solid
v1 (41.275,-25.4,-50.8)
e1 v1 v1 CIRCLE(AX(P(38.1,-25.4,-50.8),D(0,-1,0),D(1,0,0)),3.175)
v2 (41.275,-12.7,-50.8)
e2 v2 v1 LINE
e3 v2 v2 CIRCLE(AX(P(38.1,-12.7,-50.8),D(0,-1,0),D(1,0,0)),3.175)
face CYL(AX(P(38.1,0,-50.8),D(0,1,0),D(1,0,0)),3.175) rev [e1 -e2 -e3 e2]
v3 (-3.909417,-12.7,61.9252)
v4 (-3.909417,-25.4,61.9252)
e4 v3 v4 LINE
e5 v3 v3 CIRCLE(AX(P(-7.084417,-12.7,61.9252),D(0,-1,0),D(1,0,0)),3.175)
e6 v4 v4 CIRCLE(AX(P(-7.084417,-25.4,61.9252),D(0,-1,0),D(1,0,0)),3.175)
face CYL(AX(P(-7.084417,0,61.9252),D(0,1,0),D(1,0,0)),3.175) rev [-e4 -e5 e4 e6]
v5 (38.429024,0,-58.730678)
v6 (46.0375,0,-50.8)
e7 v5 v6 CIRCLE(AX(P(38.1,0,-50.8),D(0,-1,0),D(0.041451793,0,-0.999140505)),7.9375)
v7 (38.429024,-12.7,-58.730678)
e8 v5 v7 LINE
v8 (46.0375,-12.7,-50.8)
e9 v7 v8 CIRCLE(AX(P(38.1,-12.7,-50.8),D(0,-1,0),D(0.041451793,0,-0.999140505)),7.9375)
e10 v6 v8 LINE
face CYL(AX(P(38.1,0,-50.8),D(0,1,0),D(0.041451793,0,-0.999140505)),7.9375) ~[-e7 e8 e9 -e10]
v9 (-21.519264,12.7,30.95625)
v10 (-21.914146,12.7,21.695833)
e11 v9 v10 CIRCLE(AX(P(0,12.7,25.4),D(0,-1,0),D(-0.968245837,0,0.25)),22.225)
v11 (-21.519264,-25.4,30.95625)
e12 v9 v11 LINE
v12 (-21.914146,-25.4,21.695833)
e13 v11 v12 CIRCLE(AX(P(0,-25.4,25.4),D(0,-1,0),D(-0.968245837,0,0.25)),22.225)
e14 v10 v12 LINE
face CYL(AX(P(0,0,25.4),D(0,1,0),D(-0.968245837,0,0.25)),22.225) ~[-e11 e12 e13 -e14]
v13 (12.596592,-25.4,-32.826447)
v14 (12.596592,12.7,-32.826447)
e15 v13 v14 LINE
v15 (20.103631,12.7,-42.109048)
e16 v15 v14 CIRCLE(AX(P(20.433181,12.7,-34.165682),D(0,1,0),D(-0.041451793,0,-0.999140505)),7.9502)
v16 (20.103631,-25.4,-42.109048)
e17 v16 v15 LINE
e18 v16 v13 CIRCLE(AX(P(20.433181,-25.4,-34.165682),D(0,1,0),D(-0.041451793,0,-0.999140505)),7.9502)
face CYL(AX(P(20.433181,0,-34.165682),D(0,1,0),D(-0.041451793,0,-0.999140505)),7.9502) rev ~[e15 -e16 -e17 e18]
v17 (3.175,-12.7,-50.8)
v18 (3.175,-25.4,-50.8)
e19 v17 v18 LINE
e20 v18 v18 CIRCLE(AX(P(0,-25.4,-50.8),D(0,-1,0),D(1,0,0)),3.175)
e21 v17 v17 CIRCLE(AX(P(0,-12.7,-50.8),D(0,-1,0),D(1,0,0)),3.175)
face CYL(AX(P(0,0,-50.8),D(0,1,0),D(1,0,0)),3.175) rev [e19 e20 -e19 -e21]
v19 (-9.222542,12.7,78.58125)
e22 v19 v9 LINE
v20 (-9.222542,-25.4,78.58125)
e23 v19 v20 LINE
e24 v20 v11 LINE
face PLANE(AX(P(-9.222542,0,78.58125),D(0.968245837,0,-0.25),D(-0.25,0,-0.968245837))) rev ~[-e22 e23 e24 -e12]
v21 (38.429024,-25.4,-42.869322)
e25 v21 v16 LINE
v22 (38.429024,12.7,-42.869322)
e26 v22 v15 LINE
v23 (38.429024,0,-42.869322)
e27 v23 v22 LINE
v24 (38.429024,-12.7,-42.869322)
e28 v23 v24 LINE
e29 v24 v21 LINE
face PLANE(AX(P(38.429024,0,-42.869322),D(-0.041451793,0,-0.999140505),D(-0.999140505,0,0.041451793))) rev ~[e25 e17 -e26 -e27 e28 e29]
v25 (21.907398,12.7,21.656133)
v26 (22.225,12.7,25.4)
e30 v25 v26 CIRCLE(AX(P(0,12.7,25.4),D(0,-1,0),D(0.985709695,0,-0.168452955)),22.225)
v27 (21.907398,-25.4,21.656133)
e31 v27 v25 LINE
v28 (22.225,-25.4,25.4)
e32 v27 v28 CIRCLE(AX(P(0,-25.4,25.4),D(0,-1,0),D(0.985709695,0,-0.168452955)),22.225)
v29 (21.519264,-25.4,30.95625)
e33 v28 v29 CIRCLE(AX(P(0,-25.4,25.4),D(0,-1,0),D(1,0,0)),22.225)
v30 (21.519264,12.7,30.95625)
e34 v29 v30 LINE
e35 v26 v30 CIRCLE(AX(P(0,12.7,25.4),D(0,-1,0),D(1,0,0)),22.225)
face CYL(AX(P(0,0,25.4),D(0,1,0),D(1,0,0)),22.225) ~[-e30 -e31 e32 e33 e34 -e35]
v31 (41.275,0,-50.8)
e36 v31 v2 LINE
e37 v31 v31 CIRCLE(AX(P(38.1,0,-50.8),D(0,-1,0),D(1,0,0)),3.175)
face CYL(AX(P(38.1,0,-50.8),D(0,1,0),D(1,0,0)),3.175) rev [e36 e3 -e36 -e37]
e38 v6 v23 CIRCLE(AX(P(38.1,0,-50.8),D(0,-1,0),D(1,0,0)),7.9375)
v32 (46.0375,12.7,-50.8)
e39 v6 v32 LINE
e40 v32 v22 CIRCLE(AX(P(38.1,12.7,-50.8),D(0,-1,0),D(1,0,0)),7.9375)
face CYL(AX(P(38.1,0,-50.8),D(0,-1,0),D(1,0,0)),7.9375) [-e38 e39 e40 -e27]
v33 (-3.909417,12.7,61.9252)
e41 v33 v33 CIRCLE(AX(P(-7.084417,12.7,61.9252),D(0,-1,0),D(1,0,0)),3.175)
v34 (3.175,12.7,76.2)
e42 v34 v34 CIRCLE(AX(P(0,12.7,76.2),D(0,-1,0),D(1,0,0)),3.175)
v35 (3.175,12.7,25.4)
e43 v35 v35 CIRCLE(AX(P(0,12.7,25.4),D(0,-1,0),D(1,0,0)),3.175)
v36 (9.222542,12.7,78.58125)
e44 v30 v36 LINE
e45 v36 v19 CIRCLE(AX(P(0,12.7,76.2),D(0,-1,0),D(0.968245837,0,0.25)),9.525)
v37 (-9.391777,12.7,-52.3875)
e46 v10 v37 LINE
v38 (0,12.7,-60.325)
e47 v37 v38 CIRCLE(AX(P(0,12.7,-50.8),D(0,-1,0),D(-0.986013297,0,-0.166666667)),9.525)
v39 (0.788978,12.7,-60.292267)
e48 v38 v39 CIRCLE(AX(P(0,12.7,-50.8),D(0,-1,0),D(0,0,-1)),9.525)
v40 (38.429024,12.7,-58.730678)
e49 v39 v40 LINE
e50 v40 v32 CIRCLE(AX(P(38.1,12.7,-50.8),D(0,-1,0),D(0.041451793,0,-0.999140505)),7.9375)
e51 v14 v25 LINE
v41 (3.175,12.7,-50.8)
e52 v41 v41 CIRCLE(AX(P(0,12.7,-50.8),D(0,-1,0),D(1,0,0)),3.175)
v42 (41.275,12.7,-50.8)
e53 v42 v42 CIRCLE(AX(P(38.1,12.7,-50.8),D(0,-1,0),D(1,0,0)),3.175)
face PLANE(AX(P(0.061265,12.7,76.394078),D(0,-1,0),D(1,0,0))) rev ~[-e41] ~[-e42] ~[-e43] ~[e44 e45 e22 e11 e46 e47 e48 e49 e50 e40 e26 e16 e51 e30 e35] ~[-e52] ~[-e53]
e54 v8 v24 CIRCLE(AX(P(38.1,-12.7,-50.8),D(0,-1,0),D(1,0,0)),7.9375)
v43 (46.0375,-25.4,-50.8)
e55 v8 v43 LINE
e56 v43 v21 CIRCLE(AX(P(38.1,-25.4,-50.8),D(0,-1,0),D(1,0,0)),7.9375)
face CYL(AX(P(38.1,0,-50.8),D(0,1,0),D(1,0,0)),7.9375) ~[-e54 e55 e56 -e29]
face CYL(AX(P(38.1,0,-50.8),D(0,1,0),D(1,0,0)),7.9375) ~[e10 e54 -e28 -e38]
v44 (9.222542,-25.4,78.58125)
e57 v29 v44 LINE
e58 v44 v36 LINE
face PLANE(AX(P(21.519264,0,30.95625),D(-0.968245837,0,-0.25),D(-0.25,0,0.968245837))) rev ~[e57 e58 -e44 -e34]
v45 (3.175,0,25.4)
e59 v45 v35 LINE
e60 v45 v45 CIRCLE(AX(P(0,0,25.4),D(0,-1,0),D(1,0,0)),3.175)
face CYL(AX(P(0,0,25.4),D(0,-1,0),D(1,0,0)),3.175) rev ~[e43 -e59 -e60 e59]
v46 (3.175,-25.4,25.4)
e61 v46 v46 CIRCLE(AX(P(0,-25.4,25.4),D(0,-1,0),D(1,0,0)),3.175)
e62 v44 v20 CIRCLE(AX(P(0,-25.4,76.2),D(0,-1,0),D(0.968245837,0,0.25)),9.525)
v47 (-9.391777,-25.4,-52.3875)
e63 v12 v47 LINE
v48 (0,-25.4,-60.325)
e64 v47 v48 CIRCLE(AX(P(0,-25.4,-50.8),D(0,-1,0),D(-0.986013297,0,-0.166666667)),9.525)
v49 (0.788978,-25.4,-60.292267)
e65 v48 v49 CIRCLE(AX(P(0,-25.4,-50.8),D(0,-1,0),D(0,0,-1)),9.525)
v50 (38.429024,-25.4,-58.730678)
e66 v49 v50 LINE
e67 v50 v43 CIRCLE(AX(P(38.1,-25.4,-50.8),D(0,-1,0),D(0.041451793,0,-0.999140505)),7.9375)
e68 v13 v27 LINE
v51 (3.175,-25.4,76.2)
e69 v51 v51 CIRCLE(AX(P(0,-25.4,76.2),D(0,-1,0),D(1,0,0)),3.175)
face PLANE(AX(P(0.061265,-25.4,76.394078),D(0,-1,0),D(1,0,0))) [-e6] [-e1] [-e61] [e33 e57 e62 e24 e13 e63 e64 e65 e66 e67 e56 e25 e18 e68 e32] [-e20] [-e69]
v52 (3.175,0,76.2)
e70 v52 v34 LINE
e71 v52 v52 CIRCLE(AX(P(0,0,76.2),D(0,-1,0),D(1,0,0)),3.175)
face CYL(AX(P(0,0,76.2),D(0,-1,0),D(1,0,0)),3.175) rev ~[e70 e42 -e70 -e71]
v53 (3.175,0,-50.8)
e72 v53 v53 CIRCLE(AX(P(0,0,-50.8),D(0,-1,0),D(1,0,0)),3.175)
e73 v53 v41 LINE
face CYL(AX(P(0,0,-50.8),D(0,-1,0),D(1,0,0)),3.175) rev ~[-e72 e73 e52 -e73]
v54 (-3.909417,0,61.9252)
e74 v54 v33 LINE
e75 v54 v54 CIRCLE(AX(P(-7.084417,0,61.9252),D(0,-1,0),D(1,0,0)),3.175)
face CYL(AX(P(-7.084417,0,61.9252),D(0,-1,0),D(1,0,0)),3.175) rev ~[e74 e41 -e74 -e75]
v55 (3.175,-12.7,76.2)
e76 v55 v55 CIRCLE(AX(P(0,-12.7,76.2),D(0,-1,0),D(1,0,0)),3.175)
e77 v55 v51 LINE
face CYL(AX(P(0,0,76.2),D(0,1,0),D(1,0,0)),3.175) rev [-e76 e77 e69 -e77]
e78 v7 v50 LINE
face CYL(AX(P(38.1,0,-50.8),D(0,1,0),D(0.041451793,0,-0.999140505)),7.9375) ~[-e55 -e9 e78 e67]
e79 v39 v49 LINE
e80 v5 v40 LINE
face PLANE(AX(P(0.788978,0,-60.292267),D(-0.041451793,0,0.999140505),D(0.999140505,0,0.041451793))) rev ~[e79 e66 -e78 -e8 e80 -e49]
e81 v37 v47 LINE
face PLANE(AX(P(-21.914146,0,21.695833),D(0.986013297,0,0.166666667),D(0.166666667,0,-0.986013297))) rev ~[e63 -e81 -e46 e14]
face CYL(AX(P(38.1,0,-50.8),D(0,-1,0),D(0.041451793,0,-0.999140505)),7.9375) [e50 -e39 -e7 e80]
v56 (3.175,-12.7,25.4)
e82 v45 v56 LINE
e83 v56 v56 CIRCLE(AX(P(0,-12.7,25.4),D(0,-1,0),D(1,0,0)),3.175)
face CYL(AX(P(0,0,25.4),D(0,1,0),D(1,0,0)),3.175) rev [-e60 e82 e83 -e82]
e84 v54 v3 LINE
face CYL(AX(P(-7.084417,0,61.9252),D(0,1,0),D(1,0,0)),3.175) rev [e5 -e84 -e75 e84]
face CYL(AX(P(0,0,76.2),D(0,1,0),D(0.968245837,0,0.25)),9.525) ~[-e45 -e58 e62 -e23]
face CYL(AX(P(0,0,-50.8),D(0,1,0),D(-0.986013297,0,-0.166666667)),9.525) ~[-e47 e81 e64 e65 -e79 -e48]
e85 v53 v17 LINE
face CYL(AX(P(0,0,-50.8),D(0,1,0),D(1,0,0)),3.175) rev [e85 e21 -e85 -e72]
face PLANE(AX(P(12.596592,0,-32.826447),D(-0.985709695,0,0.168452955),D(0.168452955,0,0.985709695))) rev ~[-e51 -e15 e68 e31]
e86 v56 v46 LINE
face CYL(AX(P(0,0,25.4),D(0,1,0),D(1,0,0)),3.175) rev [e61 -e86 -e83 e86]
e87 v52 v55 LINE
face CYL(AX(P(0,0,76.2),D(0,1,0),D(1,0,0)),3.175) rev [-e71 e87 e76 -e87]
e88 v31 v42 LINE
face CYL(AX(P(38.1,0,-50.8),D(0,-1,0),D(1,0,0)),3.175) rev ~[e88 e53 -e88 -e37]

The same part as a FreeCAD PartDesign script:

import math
import FreeCAD as App
import Part
import Sketcher

V = App.Vector
Q = App.Units.Quantity

doc = App.newDocument("Part")
body = doc.addObject("PartDesign::Body", "Body")

sketch1 = body.newObject("Sketcher::SketchObject", "Sketch")
sketch1.AttachmentSupport = (doc.getObject("XZ_Plane"), [""])
sketch1.MapMode = "FlatFace"
sketch1.addGeometry(Part.ArcOfCircle(Part.Circle(V(0, 76.2, 0), V(0, 0, 1), 9.525), math.radians(14.477512), math.radians(165.522488)), False)
sketch1.addGeometry(Part.LineSegment(V(-9.222542, 78.58125, 0), V(-21.519264, 30.95625, 0)), False)
sketch1.addGeometry(Part.ArcOfCircle(Part.Circle(V(0, 25.4, 0), V(0, 0, 1), 22.225), math.radians(165.522488), math.radians(189.594068)), False)
sketch1.addGeometry(Part.LineSegment(V(-21.914146, 21.695833, 0), V(-9.391777, -52.3875, 0)), False)
sketch1.addGeometry(Part.ArcOfCircle(Part.Circle(V(0, -50.8, 0), V(0, 0, 1), 9.525), math.radians(-170.405932), math.radians(-90)), False)
sketch1.addGeometry(Part.ArcOfCircle(Part.Circle(V(0, -50.8, 0), V(0, 0, 1), 9.525), math.radians(-90), math.radians(-85.248613)), False)
sketch1.addGeometry(Part.LineSegment(V(0.788978, -60.292267, 0), V(38.429024, -58.730678, 0)), False)
sketch1.addGeometry(Part.ArcOfCircle(Part.Circle(V(38.1, -50.8, 0), V(0, 0, 1), 7.9375), math.radians(-87.624307), math.radians(0)), False)
sketch1.addGeometry(Part.ArcOfCircle(Part.Circle(V(38.1, -50.8, 0), V(0, 0, 1), 7.9375), math.radians(0), math.radians(87.624307)), False)
sketch1.addGeometry(Part.LineSegment(V(38.429024, -42.869322, 0), V(20.103631, -42.109048, 0)), False)
sketch1.addGeometry(Part.ArcOfCircle(Part.Circle(V(20.433181, -34.165682, 0), V(0, 0, 1), 7.9502), math.radians(170.302117), math.radians(267.624307)), False)
sketch1.addGeometry(Part.LineSegment(V(12.596592, -32.826447, 0), V(21.907398, 21.656133, 0)), False)
sketch1.addGeometry(Part.ArcOfCircle(Part.Circle(V(0, 25.4, 0), V(0, 0, 1), 22.225), math.radians(-9.697883), math.radians(0)), False)
sketch1.addGeometry(Part.ArcOfCircle(Part.Circle(V(0, 25.4, 0), V(0, 0, 1), 22.225), math.radians(0), math.radians(14.477512)), False)
sketch1.addGeometry(Part.LineSegment(V(21.519264, 30.95625, 0), V(9.222542, 78.58125, 0)), False)
sketch1.addGeometry(Part.Circle(V(0, -50.8, 0), V(0, 0, 1), 3.175), False)
sketch1.addGeometry(Part.Circle(V(38.1, -50.8, 0), V(0, 0, 1), 3.175), False)
sketch1.addGeometry(Part.Circle(V(0, 25.4, 0), V(0, 0, 1), 3.175), False)
sketch1.addGeometry(Part.Circle(V(-7.084417, 61.9252, 0), V(0, 0, 1), 3.175), False)
sketch1.addGeometry(Part.Circle(V(0, 76.2, 0), V(0, 0, 1), 3.175), False)
sketch1.addConstraint(Sketcher.Constraint("Coincident", 0, 2, 1, 1))
sketch1.addConstraint(Sketcher.Constraint("Coincident", 1, 2, 2, 1))
sketch1.addConstraint(Sketcher.Constraint("Coincident", 2, 2, 3, 1))
sketch1.addConstraint(Sketcher.Constraint("Coincident", 3, 2, 4, 1))
sketch1.addConstraint(Sketcher.Constraint("Coincident", 4, 2, 5, 1))
sketch1.addConstraint(Sketcher.Constraint("Coincident", 5, 2, 6, 1))
sketch1.addConstraint(Sketcher.Constraint("Coincident", 6, 2, 7, 1))
sketch1.addConstraint(Sketcher.Constraint("Coincident", 7, 2, 8, 1))
sketch1.addConstraint(Sketcher.Constraint("Coincident", 8, 2, 9, 1))
sketch1.addConstraint(Sketcher.Constraint("Coincident", 9, 2, 10, 2))
sketch1.addConstraint(Sketcher.Constraint("Coincident", 10, 1, 11, 1))
sketch1.addConstraint(Sketcher.Constraint("Coincident", 11, 2, 12, 1))
sketch1.addConstraint(Sketcher.Constraint("Coincident", 12, 2, 13, 1))
sketch1.addConstraint(Sketcher.Constraint("Coincident", 13, 2, 14, 1))
sketch1.addConstraint(Sketcher.Constraint("Coincident", 14, 2, 0, 1))
sketch1.addConstraint(Sketcher.Constraint("Coincident", 5, 3, 4, 3))
sketch1.addConstraint(Sketcher.Constraint("Coincident", 8, 3, 7, 3))
sketch1.addConstraint(Sketcher.Constraint("Coincident", 12, 3, 2, 3))
sketch1.addConstraint(Sketcher.Constraint("Coincident", 13, 3, 2, 3))
sketch1.addConstraint(Sketcher.Constraint("Coincident", 15, 3, 4, 3))
sketch1.addConstraint(Sketcher.Constraint("Coincident", 16, 3, 7, 3))
sketch1.addConstraint(Sketcher.Constraint("Coincident", 17, 3, 2, 3))
sketch1.addConstraint(Sketcher.Constraint("Coincident", 19, 3, 0, 3))
sketch1.addConstraint(Sketcher.Constraint("PointOnObject", 0, 3, -2))
sketch1.addConstraint(Sketcher.Constraint("PointOnObject", 2, 3, -2))
sketch1.addConstraint(Sketcher.Constraint("PointOnObject", 4, 3, -2))
sketch1.addConstraint(Sketcher.Constraint("PointOnObject", 4, 2, -2))
sketch1.addConstraint(Sketcher.Constraint("Diameter", 15, Q("0.25 in")))
sketch1.addConstraint(Sketcher.Constraint("Diameter", 16, Q("0.25 in")))
sketch1.addConstraint(Sketcher.Constraint("Diameter", 17, Q("0.25 in")))
sketch1.addConstraint(Sketcher.Constraint("Diameter", 18, Q("0.25 in")))
sketch1.addConstraint(Sketcher.Constraint("Diameter", 19, Q("0.25 in")))
sketch1.addConstraint(Sketcher.Constraint("DistanceY", -1, 1, 0, 3, Q("3 in")))
sketch1.addConstraint(Sketcher.Constraint("DistanceY", -1, 1, 2, 3, Q("1 in")))
sketch1.addConstraint(Sketcher.Constraint("DistanceY", 4, 3, -1, 1, Q("2 in")))
sketch1.addConstraint(Sketcher.Constraint("DistanceY", 7, 3, -1, 1, Q("2 in")))
sketch1.addConstraint(Sketcher.Constraint("DistanceY", 7, 2, -1, 1, Q("2 in")))
sketch1.addConstraint(Sketcher.Constraint("DistanceY", -1, 1, 12, 2, Q("1 in")))
sketch1.addConstraint(Sketcher.Constraint("Radius", 0, Q("0.375 in")))
sketch1.addConstraint(Sketcher.Constraint("Radius", 2, Q("0.875 in")))
sketch1.addConstraint(Sketcher.Constraint("Radius", 4, Q("0.375 in")))
sketch1.addConstraint(Sketcher.Constraint("Radius", 7, Q("0.3125 in")))
sketch1.addConstraint(Sketcher.Constraint("Radius", 10, Q("0.313 in")))
sketch1.addConstraint(Sketcher.Constraint("Radius", 12, Q("0.875 in")))
sketch1.addConstraint(Sketcher.Constraint("DistanceX", -1, 1, 7, 3, Q("1.5 in")))
sketch1.addConstraint(Sketcher.Constraint("DistanceY", -1, 1, 18, 3, Q("2.438 in")))
sketch1.addConstraint(Sketcher.Constraint("DistanceY", -1, 1, 0, 2, Q("3.09375 in")))
sketch1.addConstraint(Sketcher.Constraint("DistanceY", -1, 1, 1, 2, Q("1.21875 in")))
sketch1.addConstraint(Sketcher.Constraint("DistanceY", 3, 2, -1, 1, Q("2.0625 in")))
sketch1.addConstraint(Sketcher.Constraint("DistanceY", -1, 1, 13, 2, Q("1.21875 in")))
sketch1.addConstraint(Sketcher.Constraint("DistanceY", -1, 1, 14, 2, Q("3.09375 in")))
sketch1.addConstraint(Sketcher.Constraint("DistanceY", 9, 2, 10, 1, Q("9.282602 mm")))
sketch1.addConstraint(Sketcher.Constraint("DistanceY", 11, 2, 2, 2, Q("0.0397 mm")))
sketch1.addConstraint(Sketcher.Constraint("Distance", 11, Q("55.27244 mm")))
sketch1.addConstraint(Sketcher.Constraint("DistanceX", -1, 1, 10, 3, Q("20.433181 mm")))
sketch1.addConstraint(Sketcher.Constraint("DistanceY", 10, 3, -1, 1, Q("34.165682 mm")))
sketch1.addConstraint(Sketcher.Constraint("DistanceX", -1, 1, 9, 2, Q("20.103631 mm")))
sketch1.addConstraint(Sketcher.Constraint("DistanceY", 5, 2, 6, 2, Q("1.56159 mm")))
sketch1.addConstraint(Sketcher.Constraint("DistanceX", 18, 3, 14, 2, Q("16.306959 mm")))
sketch1.addConstraint(Sketcher.Constraint("Distance", 6, Q("37.672425 mm")))
sketch1.addConstraint(Sketcher.Constraint("Distance", 9, Q("18.341156 mm")))
pad1 = body.newObject("PartDesign::Pad", "Pad")
pad1.Profile = sketch1
pad1.Length = Q("1 in")
pad1.Midplane = True

sketch2 = body.newObject("Sketcher::SketchObject", "Sketch001")
sketch2.AttachmentSupport = (doc.getObject("XZ_Plane"), [""])
sketch2.MapMode = "FlatFace"
sketch2.addGeometry(Part.ArcOfCircle(Part.Circle(V(0, 76.2, 0), V(0, 0, 1), 9.525), math.radians(14.477512), math.radians(165.522488)), False)
sketch2.addGeometry(Part.LineSegment(V(-9.222542, 78.58125, 0), V(-21.519264, 30.95625, 0)), False)
sketch2.addGeometry(Part.ArcOfCircle(Part.Circle(V(0, 25.4, 0), V(0, 0, 1), 22.225), math.radians(165.522488), math.radians(189.594068)), False)
sketch2.addGeometry(Part.LineSegment(V(-21.914146, 21.695833, 0), V(-9.391777, -52.3875, 0)), False)
sketch2.addGeometry(Part.ArcOfCircle(Part.Circle(V(0, -50.8, 0), V(0, 0, 1), 9.525), math.radians(-170.405932), math.radians(-90)), False)
sketch2.addGeometry(Part.ArcOfCircle(Part.Circle(V(0, -50.8, 0), V(0, 0, 1), 9.525), math.radians(-90), math.radians(-85.248613)), False)
sketch2.addGeometry(Part.LineSegment(V(0.788978, -60.292267, 0), V(38.429024, -58.730678, 0)), False)
sketch2.addGeometry(Part.ArcOfCircle(Part.Circle(V(38.1, -50.8, 0), V(0, 0, 1), 7.9375), math.radians(-87.624307), math.radians(0)), False)
sketch2.addGeometry(Part.ArcOfCircle(Part.Circle(V(38.1, -50.8, 0), V(0, 0, 1), 7.9375), math.radians(0), math.radians(87.624307)), False)
sketch2.addGeometry(Part.LineSegment(V(38.429024, -42.869322, 0), V(20.103631, -42.109048, 0)), False)
sketch2.addGeometry(Part.ArcOfCircle(Part.Circle(V(20.433181, -34.165682, 0), V(0, 0, 1), 7.9502), math.radians(170.302117), math.radians(267.624307)), False)
sketch2.addGeometry(Part.LineSegment(V(12.596592, -32.826447, 0), V(21.907398, 21.656133, 0)), False)
sketch2.addGeometry(Part.ArcOfCircle(Part.Circle(V(0, 25.4, 0), V(0, 0, 1), 22.225), math.radians(-9.697883), math.radians(0)), False)
sketch2.addGeometry(Part.ArcOfCircle(Part.Circle(V(0, 25.4, 0), V(0, 0, 1), 22.225), math.radians(0), math.radians(14.477512)), False)
sketch2.addGeometry(Part.LineSegment(V(21.519264, 30.95625, 0), V(9.222542, 78.58125, 0)), False)
sketch2.addGeometry(Part.Circle(V(0, -50.8, 0), V(0, 0, 1), 3.175), False)
sketch2.addGeometry(Part.Circle(V(38.1, -50.8, 0), V(0, 0, 1), 3.175), False)
sketch2.addGeometry(Part.Circle(V(0, 25.4, 0), V(0, 0, 1), 3.175), False)
sketch2.addGeometry(Part.Circle(V(-7.084417, 61.9252, 0), V(0, 0, 1), 3.175), False)
sketch2.addGeometry(Part.Circle(V(0, 76.2, 0), V(0, 0, 1), 3.175), False)
sketch2.addConstraint(Sketcher.Constraint("Coincident", 0, 2, 1, 1))
sketch2.addConstraint(Sketcher.Constraint("Coincident", 1, 2, 2, 1))
sketch2.addConstraint(Sketcher.Constraint("Coincident", 2, 2, 3, 1))
sketch2.addConstraint(Sketcher.Constraint("Coincident", 3, 2, 4, 1))
sketch2.addConstraint(Sketcher.Constraint("Coincident", 4, 2, 5, 1))
sketch2.addConstraint(Sketcher.Constraint("Coincident", 5, 2, 6, 1))
sketch2.addConstraint(Sketcher.Constraint("Coincident", 6, 2, 7, 1))
sketch2.addConstraint(Sketcher.Constraint("Coincident", 7, 2, 8, 1))
sketch2.addConstraint(Sketcher.Constraint("Coincident", 8, 2, 9, 1))
sketch2.addConstraint(Sketcher.Constraint("Coincident", 9, 2, 10, 2))
sketch2.addConstraint(Sketcher.Constraint("Coincident", 10, 1, 11, 1))
sketch2.addConstraint(Sketcher.Constraint("Coincident", 11, 2, 12, 1))
sketch2.addConstraint(Sketcher.Constraint("Coincident", 12, 2, 13, 1))
sketch2.addConstraint(Sketcher.Constraint("Coincident", 13, 2, 14, 1))
sketch2.addConstraint(Sketcher.Constraint("Coincident", 14, 2, 0, 1))
sketch2.addConstraint(Sketcher.Constraint("Coincident", 5, 3, 4, 3))
sketch2.addConstraint(Sketcher.Constraint("Coincident", 8, 3, 7, 3))
sketch2.addConstraint(Sketcher.Constraint("Coincident", 12, 3, 2, 3))
sketch2.addConstraint(Sketcher.Constraint("Coincident", 13, 3, 2, 3))
sketch2.addConstraint(Sketcher.Constraint("Coincident", 15, 3, 4, 3))
sketch2.addConstraint(Sketcher.Constraint("Coincident", 16, 3, 7, 3))
sketch2.addConstraint(Sketcher.Constraint("Coincident", 17, 3, 2, 3))
sketch2.addConstraint(Sketcher.Constraint("Coincident", 19, 3, 0, 3))
sketch2.addConstraint(Sketcher.Constraint("PointOnObject", 0, 3, -2))
sketch2.addConstraint(Sketcher.Constraint("PointOnObject", 2, 3, -2))
sketch2.addConstraint(Sketcher.Constraint("PointOnObject", 4, 3, -2))
sketch2.addConstraint(Sketcher.Constraint("PointOnObject", 4, 2, -2))
sketch2.addConstraint(Sketcher.Constraint("Diameter", 15, Q("0.25 in")))
sketch2.addConstraint(Sketcher.Constraint("Diameter", 16, Q("0.25 in")))
sketch2.addConstraint(Sketcher.Constraint("Diameter", 17, Q("0.25 in")))
sketch2.addConstraint(Sketcher.Constraint("Diameter", 18, Q("0.25 in")))
sketch2.addConstraint(Sketcher.Constraint("Diameter", 19, Q("0.25 in")))
sketch2.addConstraint(Sketcher.Constraint("DistanceY", -1, 1, 0, 3, Q("3 in")))
sketch2.addConstraint(Sketcher.Constraint("DistanceY", -1, 1, 2, 3, Q("1 in")))
sketch2.addConstraint(Sketcher.Constraint("DistanceY", 4, 3, -1, 1, Q("2 in")))
sketch2.addConstraint(Sketcher.Constraint("DistanceY", 7, 3, -1, 1, Q("2 in")))
sketch2.addConstraint(Sketcher.Constraint("DistanceY", 7, 2, -1, 1, Q("2 in")))
sketch2.addConstraint(Sketcher.Constraint("DistanceY", -1, 1, 12, 2, Q("1 in")))
sketch2.addConstraint(Sketcher.Constraint("Radius", 0, Q("0.375 in")))
sketch2.addConstraint(Sketcher.Constraint("Radius", 2, Q("0.875 in")))
sketch2.addConstraint(Sketcher.Constraint("Radius", 4, Q("0.375 in")))
sketch2.addConstraint(Sketcher.Constraint("Radius", 7, Q("0.3125 in")))
sketch2.addConstraint(Sketcher.Constraint("Radius", 10, Q("0.313 in")))
sketch2.addConstraint(Sketcher.Constraint("Radius", 12, Q("0.875 in")))
sketch2.addConstraint(Sketcher.Constraint("DistanceX", -1, 1, 7, 3, Q("1.5 in")))
sketch2.addConstraint(Sketcher.Constraint("DistanceY", -1, 1, 18, 3, Q("2.438 in")))
sketch2.addConstraint(Sketcher.Constraint("DistanceY", -1, 1, 0, 2, Q("3.09375 in")))
sketch2.addConstraint(Sketcher.Constraint("DistanceY", -1, 1, 1, 2, Q("1.21875 in")))
sketch2.addConstraint(Sketcher.Constraint("DistanceY", 3, 2, -1, 1, Q("2.0625 in")))
sketch2.addConstraint(Sketcher.Constraint("DistanceY", -1, 1, 13, 2, Q("1.21875 in")))
sketch2.addConstraint(Sketcher.Constraint("DistanceY", -1, 1, 14, 2, Q("3.09375 in")))
sketch2.addConstraint(Sketcher.Constraint("DistanceY", 9, 2, 10, 1, Q("9.282602 mm")))
sketch2.addConstraint(Sketcher.Constraint("DistanceY", 11, 2, 2, 2, Q("0.0397 mm")))
sketch2.addConstraint(Sketcher.Constraint("Distance", 11, Q("55.27244 mm")))
sketch2.addConstraint(Sketcher.Constraint("DistanceX", -1, 1, 10, 3, Q("20.433181 mm")))
sketch2.addConstraint(Sketcher.Constraint("DistanceY", 10, 3, -1, 1, Q("34.165682 mm")))
sketch2.addConstraint(Sketcher.Constraint("DistanceX", -1, 1, 9, 2, Q("20.103631 mm")))
sketch2.addConstraint(Sketcher.Constraint("DistanceY", 5, 2, 6, 2, Q("1.56159 mm")))
sketch2.addConstraint(Sketcher.Constraint("DistanceX", 18, 3, 14, 2, Q("16.306959 mm")))
sketch2.addConstraint(Sketcher.Constraint("Distance", 6, Q("37.672425 mm")))
sketch2.addConstraint(Sketcher.Constraint("Distance", 9, Q("18.341156 mm")))
pad2 = body.newObject("PartDesign::Pad", "Pad001")
pad2.Profile = sketch2
pad2.Length = Q("1 in")

doc.recompute()
